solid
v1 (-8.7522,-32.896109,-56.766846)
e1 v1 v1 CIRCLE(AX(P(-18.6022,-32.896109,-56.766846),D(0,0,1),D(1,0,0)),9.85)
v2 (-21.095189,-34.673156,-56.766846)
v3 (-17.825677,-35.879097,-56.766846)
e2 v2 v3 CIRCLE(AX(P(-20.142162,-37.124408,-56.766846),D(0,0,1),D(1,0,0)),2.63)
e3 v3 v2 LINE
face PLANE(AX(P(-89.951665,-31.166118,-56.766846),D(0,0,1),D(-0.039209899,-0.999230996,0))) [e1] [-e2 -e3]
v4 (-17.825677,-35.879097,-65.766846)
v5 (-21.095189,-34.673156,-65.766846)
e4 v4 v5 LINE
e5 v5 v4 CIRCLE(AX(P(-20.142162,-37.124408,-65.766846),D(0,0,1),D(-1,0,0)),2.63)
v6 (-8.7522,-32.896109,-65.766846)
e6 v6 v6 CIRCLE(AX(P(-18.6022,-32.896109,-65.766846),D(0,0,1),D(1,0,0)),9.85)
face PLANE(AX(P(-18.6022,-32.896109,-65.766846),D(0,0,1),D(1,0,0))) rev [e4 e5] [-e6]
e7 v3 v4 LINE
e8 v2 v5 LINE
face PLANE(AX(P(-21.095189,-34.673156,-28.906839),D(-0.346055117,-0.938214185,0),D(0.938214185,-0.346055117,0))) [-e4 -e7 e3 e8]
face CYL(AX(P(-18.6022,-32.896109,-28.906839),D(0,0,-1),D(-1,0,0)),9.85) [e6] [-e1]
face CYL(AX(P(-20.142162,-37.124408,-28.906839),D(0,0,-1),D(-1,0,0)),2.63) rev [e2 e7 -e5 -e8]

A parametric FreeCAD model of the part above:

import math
import FreeCAD as App
import Part
import Sketcher
Q = App.Units.Quantity

doc = App.newDocument("Part")
params = doc.addObject("Spreadsheet::Sheet", "Params")
for row, (alias, value) in enumerate([
    ("sketch1_diameter", "19.7 mm"),
    ("sketch1_radius", "2.63 mm"),
    ("pad1_length", "9 mm"),
], start=1):
    params.set(f"A{row}", alias)
    params.set(f"B{row}", "=" + value)
    params.setAlias(f"B{row}", alias)

body = doc.addObject("PartDesign::Body", "Body")

# Sketch on XY plane
sketch1 = body.newObject("Sketcher::SketchObject", "Sketch")
sketch1.AttachmentSupport = (doc.getObject("XY_Plane"), [""])
sketch1.MapMode = "FlatFace"
sketch1.AttachmentOffset = App.Placement(App.Vector(0, 0, -65.766846), App.Rotation())
sketch1.addGeometry(Part.Circle(App.Vector(-18.6, -32.9, 0), App.Vector(0, 0, 1), 9.8), False)
sketch1.addGeometry(Part.ArcOfCircle(Part.Circle(App.Vector(-20.1, -37.1, 0), App.Vector(0, 0, 1), 2.6), math.radians(111), math.radians(388)), False)
sketch1.addGeometry(Part.LineSegment(App.Vector(-21.1, -34.7, 0), App.Vector(-17.8, -35.9, 0)), False)
sketch1.addConstraint(Sketcher.Constraint("Coincident", 1, 1, 2, 1))
sketch1.addConstraint(Sketcher.Constraint("Coincident", 2, 2, 1, 2))
sketch1.addConstraint(Sketcher.Constraint("Diameter", 0, Q("19.7 mm")))
sketch1.addConstraint(Sketcher.Constraint("Radius", 1, Q("2.63 mm")))
sketch1.addConstraint(Sketcher.Constraint("DistanceX", 0, 3, -1, 1, Q("18.6022 mm")))
sketch1.addConstraint(Sketcher.Constraint("DistanceY", 1, 3, 0, 3, Q("4.2283 mm")))
sketch1.addConstraint(Sketcher.Constraint("DistanceY", 0, 3, -1, 1, Q("32.896109 mm")))
sketch1.addConstraint(Sketcher.Constraint("DistanceX", 1, 3, -1, 1, Q("20.142162 mm")))
sketch1.addConstraint(Sketcher.Constraint("DistanceX", 1, 1, -1, 1, Q("21.095189 mm")))
sketch1.addConstraint(Sketcher.Constraint("DistanceY", 1, 3, 2, 2, Q("1.245311 mm")))
sketch1.setExpression("Constraints[2]", "Params.sketch1_diameter")
sketch1.setExpression("Constraints[3]", "Params.sketch1_radius")
pad1 = body.newObject("PartDesign::Pad", "Pad")
pad1.Profile = sketch1
pad1.setExpression("Length", "Params.pad1_length")

doc.recompute()
